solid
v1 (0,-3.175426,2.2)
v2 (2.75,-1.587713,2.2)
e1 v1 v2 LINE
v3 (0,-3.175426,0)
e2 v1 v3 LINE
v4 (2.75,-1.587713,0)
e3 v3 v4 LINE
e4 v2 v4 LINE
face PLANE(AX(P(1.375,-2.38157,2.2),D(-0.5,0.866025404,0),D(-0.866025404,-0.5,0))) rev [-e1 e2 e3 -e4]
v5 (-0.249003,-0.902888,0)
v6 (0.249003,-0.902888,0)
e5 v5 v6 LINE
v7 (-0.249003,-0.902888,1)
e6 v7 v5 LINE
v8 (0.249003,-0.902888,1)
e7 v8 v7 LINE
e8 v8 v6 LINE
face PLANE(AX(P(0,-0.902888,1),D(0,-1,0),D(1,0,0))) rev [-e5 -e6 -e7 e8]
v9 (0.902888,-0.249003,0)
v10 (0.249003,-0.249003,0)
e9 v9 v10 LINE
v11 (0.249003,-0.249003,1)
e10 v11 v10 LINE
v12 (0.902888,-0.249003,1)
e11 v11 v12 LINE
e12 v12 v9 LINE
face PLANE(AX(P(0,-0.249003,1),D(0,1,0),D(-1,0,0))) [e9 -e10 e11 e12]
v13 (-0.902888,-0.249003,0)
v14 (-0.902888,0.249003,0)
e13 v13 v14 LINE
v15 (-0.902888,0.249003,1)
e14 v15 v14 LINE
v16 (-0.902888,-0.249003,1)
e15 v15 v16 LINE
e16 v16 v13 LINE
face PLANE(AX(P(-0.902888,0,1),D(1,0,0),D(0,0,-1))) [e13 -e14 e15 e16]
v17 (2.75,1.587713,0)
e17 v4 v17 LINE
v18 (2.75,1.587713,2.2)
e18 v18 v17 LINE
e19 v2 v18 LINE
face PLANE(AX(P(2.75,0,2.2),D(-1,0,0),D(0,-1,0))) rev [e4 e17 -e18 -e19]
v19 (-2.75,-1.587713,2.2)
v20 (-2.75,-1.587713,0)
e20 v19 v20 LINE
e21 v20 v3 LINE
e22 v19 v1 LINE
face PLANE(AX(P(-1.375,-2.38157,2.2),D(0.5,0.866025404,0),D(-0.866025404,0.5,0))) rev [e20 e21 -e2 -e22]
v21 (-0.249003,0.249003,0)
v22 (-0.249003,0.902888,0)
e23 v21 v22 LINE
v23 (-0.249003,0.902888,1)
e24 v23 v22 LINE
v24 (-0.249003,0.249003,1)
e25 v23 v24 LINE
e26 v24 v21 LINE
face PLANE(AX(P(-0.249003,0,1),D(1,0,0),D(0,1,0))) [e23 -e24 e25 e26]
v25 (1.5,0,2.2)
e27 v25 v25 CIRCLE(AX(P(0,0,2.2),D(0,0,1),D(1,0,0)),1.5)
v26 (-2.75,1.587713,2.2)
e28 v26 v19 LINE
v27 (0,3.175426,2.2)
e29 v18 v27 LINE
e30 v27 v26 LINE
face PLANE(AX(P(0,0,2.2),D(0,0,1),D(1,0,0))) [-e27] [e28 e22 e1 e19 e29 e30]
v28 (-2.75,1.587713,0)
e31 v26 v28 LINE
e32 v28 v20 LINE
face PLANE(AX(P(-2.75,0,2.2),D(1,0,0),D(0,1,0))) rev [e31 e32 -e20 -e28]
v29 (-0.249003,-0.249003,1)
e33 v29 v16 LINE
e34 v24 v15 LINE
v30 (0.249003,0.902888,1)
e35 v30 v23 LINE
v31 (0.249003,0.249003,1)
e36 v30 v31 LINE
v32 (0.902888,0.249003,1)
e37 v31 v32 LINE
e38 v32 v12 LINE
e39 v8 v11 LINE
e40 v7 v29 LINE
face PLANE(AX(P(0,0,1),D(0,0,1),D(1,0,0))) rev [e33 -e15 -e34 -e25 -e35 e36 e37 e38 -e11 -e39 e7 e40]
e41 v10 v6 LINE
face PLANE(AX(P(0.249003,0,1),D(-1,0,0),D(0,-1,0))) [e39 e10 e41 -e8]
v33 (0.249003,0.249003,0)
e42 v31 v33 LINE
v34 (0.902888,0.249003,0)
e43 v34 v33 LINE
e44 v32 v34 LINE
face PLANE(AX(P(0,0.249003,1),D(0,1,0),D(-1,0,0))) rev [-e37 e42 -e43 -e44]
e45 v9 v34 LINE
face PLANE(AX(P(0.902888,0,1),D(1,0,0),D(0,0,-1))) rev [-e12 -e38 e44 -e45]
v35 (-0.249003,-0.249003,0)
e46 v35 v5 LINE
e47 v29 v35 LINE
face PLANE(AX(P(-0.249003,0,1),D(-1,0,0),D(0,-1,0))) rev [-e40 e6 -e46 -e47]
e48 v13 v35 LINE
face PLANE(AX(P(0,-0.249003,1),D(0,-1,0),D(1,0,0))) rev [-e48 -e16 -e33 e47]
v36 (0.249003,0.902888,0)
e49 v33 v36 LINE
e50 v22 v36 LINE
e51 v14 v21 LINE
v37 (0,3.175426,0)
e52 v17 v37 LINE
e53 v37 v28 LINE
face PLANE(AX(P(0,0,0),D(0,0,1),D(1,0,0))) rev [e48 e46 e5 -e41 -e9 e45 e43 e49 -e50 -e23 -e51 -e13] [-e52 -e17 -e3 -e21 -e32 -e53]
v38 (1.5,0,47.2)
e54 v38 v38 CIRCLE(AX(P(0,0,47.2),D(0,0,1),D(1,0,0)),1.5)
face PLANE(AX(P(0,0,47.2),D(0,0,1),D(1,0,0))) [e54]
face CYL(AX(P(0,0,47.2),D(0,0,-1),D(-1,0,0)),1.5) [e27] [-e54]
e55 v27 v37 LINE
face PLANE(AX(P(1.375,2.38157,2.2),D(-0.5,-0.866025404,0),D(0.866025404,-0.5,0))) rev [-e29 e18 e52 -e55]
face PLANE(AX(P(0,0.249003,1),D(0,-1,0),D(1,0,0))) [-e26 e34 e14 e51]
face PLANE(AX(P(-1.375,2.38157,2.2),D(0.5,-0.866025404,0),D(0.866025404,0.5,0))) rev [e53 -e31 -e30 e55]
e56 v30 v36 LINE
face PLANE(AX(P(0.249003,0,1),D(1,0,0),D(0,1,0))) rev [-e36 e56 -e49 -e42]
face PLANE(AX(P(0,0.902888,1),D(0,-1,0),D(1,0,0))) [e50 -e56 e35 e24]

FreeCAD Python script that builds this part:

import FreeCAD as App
import Part
import Sketcher
Q = App.Units.Quantity

doc = App.newDocument("Part")
params = doc.addObject("Spreadsheet::Sheet", "Params")
for row, (alias, value) in enumerate([
    ("sketch1_diameter", "3 mm"),
    ("pad1_length", "2.2 mm"),
    ("sketch2_diameter", "3 mm"),
    ("pad2_length", "47.2 mm"),
    ("pocket1_length", "1 mm"),
    ("pocket1_length2", "1 mm"),
], start=1):
    params.set(f"A{row}", alias)
    params.set(f"B{row}", "=" + value)
    params.setAlias(f"B{row}", alias)

body = doc.addObject("PartDesign::Body", "Body")

# Sketch on XY plane
sketch1 = body.newObject("Sketcher::SketchObject", "Sketch")
sketch1.AttachmentSupport = (doc.getObject("XY_Plane"), [""])
sketch1.MapMode = "FlatFace"
sketch1.addGeometry([
    Part.LineSegment(App.Vector(-2.8, 1.6, 0), App.Vector(-2.8, -1.6, 0)),  # 0
    Part.LineSegment(App.Vector(-2.8, -1.6, 0), App.Vector(0, -3.2, 0)),  # 1
    Part.LineSegment(App.Vector(0, -3.2, 0), App.Vector(2.8, -1.6, 0)),  # 2
    Part.LineSegment(App.Vector(2.8, -1.6, 0), App.Vector(2.8, 1.6, 0)),  # 3
    Part.LineSegment(App.Vector(2.8, 1.6, 0), App.Vector(0, 3.2, 0)),  # 4
    Part.LineSegment(App.Vector(0, 3.2, 0), App.Vector(-2.8, 1.6, 0)),  # 5
    Part.Circle(App.Vector(0, 0, 0), App.Vector(0, 0, 1), 1.5),  # 6
], False)
sketch1.addConstraint([
    Sketcher.Constraint("Coincident", 0, 2, 1, 1),
    Sketcher.Constraint("Coincident", 1, 2, 2, 1),
    Sketcher.Constraint("Coincident", 2, 2, 3, 1),
    Sketcher.Constraint("Coincident", 3, 2, 4, 1),
    Sketcher.Constraint("Coincident", 4, 2, 5, 1),
    Sketcher.Constraint("Coincident", 5, 2, 0, 1),
    Sketcher.Constraint("Vertical", 0),
    Sketcher.Constraint("Vertical", 3),
    Sketcher.Constraint("Coincident", 6, 3, -1, 1),
    Sketcher.Constraint("Symmetric", 0, 2, 3, 2, -1, 1),
    Sketcher.Constraint("Symmetric", 1, 2, 4, 2, -1, 1),
    Sketcher.Constraint("PointOnObject", 1, 2, -2),
    Sketcher.Constraint("Parallel", 2, 5),
    Sketcher.Constraint("Horizontal", 0, 2, 2, 2),
    Sketcher.Constraint("Diameter", 6, 3.0),
    Sketcher.Constraint("Angle", 1, Q("-30 deg")),
    Sketcher.Constraint("DistanceX", 0, 2, 2, 2, 5.5),
    Sketcher.Constraint("DistanceY", 0, 2, 0, 1, 3.175426),
])
sketch1.setExpression("Constraints[14]", "Params.sketch1_diameter")
pad1 = body.newObject("PartDesign::Pad", "Pad")
pad1.Profile = sketch1
pad1.setExpression("Length", "Params.pad1_length")

# Sketch on XY plane
sketch2 = body.newObject("Sketcher::SketchObject", "Sketch001")
sketch2.AttachmentSupport = (doc.getObject("XY_Plane"), [""])
sketch2.MapMode = "FlatFace"
sketch2.addGeometry(Part.Circle(App.Vector(0, 0, 0), App.Vector(0, 0, 1), 1.5), False)
sketch2.addConstraint([
    Sketcher.Constraint("Coincident", 0, 3, -1, 1),
    Sketcher.Constraint("Diameter", 0, 3.0),
])
sketch2.setExpression("Constraints[1]", "Params.sketch2_diameter")
pad2 = body.newObject("PartDesign::Pad", "Pad001")
pad2.Profile = sketch2
pad2.setExpression("Length", "Params.pad2_length")

# Sketch on XY plane
sketch3 = body.newObject("Sketcher::SketchObject", "Sketch002")
sketch3.AttachmentSupport = (doc.getObject("XY_Plane"), [""])
sketch3.MapMode = "FlatFace"
sketch3.addGeometry([
    Part.LineSegment(App.Vector(-0.9, -0.25, 0), App.Vector(-0.25, -0.25, 0)),  # 0
    Part.LineSegment(App.Vector(-0.25, -0.25, 0), App.Vector(-0.25, -0.9, 0)),  # 1
    Part.LineSegment(App.Vector(-0.25, -0.9, 0), App.Vector(0.25, -0.9, 0)),  # 2
    Part.LineSegment(App.Vector(0.25, -0.9, 0), App.Vector(0.25, -0.25, 0)),  # 3
    Part.LineSegment(App.Vector(0.25, -0.25, 0), App.Vector(0.9, -0.25, 0)),  # 4
    Part.LineSegment(App.Vector(0.9, -0.25, 0), App.Vector(0.9, 0.25, 0)),  # 5
    Part.LineSegment(App.Vector(0.9, 0.25, 0), App.Vector(0.25, 0.25, 0)),  # 6
    Part.LineSegment(App.Vector(0.25, 0.25, 0), App.Vector(0.25, 0.9, 0)),  # 7
    Part.LineSegment(App.Vector(0.25, 0.9, 0), App.Vector(-0.25, 0.9, 0)),  # 8
    Part.LineSegment(App.Vector(-0.25, 0.9, 0), App.Vector(-0.25, 0.25, 0)),  # 9
    Part.LineSegment(App.Vector(-0.25, 0.25, 0), App.Vector(-0.9, 0.25, 0)),  # 10
    Part.LineSegment(App.Vector(-0.9, 0.25, 0), App.Vector(-0.9, -0.25, 0)),  # 11
], False)
sketch3.addConstraint([
    Sketcher.Constraint("Coincident", 0, 2, 1, 1),
    Sketcher.Constraint("Coincident", 1, 2, 2, 1),
    Sketcher.Constraint("Coincident", 2, 2, 3, 1),
    Sketcher.Constraint("Coincident", 3, 2, 4, 1),
    Sketcher.Constraint("Coincident", 4, 2, 5, 1),
    Sketcher.Constraint("Coincident", 5, 2, 6, 1),
    Sketcher.Constraint("Coincident", 6, 2, 7, 1),
    Sketcher.Constraint("Coincident", 7, 2, 8, 1),
    Sketcher.Constraint("Coincident", 8, 2, 9, 1),
    Sketcher.Constraint("Coincident", 9, 2, 10, 1),
    Sketcher.Constraint("Coincident", 10, 2, 11, 1),
    Sketcher.Constraint("Coincident", 11, 2, 0, 1),
    Sketcher.Constraint("Horizontal", 0),
    Sketcher.Constraint("Vertical", 1),
    Sketcher.Constraint("Horizontal", 2),
    Sketcher.Constraint("Vertical", 3),
    Sketcher.Constraint("Horizontal", 4),
    Sketcher.Constraint("Vertical", 5),
    Sketcher.Constraint("Horizontal", 6),
    Sketcher.Constraint("Vertical", 7),
    Sketcher.Constraint("Horizontal", 8),
    Sketcher.Constraint("Vertical", 9),
    Sketcher.Constraint("Horizontal", 10),
    Sketcher.Constraint("Vertical", 11),
    Sketcher.Constraint("Symmetric", 0, 2, 6, 2, -1, 1),
    Sketcher.Constraint("Symmetric", 2, 2, 8, 2, -1, 1),
    Sketcher.Constraint("Symmetric", 4, 2, 10, 2, -1, 1),
    Sketcher.Constraint("Symmetric", 0, 2, 3, 2, -2),
    Sketcher.Constraint("Equal", 10, 1),
    Sketcher.Constraint("Equal", 8, 5),
    Sketcher.Constraint("DistanceX", 0, 1, 0, 2, 0.653885),
    Sketcher.Constraint("DistanceX", 2, 1, 2, 2, 0.498006),
])
pocket1 = body.newObject("PartDesign::Pocket", "Pocket")
pocket1.Profile = sketch3
pocket1.Type = "TwoLengths"
pocket1.setExpression("Length", "Params.pocket1_length")
pocket1.setExpression("Length2", "Params.pocket1_length2")
pocket1.Reversed = True

doc.recompute()
